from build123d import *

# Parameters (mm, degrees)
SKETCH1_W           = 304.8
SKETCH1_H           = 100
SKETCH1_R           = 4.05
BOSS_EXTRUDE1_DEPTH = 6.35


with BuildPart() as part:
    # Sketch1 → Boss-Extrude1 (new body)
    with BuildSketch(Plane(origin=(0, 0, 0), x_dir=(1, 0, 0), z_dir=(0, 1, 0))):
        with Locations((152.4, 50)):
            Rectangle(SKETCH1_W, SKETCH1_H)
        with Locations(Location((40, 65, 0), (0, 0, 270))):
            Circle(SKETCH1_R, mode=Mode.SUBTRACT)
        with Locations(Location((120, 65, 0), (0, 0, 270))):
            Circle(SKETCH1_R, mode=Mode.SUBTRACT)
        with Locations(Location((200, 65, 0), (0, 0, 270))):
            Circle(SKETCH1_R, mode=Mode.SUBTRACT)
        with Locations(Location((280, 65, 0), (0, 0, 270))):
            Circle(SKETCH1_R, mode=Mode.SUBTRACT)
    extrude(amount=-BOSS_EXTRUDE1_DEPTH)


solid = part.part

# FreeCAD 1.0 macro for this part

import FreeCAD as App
import Part
import Sketcher


def add_polygon(sketch, points):
    """Adds a closed chain of lines whose ends are joined by coincident constraints."""
    first, n = sketch.GeometryCount, len(points)
    for a, b in zip(points, points[1:] + points[:1]):
        sketch.addGeometry(Part.LineSegment(App.Vector(*a, 0), App.Vector(*b, 0)), False)
    for i in range(n):
        sketch.addConstraint(Sketcher.Constraint("Coincident", first + i, 2, first + (i + 1) % n, 1))

doc = App.newDocument("Part")
body = doc.addObject("PartDesign::Body", "Body")

# Sketch on XZ plane
sketch1 = doc.addObject("Sketcher::SketchObject", "Sketch")
body.addObject(sketch1)
sketch1.AttachmentSupport = (doc.XZ_Plane, [""])
sketch1.MapMode = "FlatFace"
add_polygon(sketch1, [(0, -100), (0, 0), (304.8, 0), (304.8, -100)])  # lines 0-3
sketch1.addGeometry(Part.Circle(App.Vector(40, -65, 0), App.Vector(0, 0, 1), 4.05), False)  # 4
sketch1.addGeometry(Part.Circle(App.Vector(120, -65, 0), App.Vector(0, 0, 1), 4.05), False)  # 5
sketch1.addGeometry(Part.Circle(App.Vector(200, -65, 0), App.Vector(0, 0, 1), 4.05), False)  # 6
sketch1.addGeometry(Part.Circle(App.Vector(280, -65, 0), App.Vector(0, 0, 1), 4.05), False)  # 7
sketch1.addConstraint(Sketcher.Constraint("Vertical", 0))
sketch1.addConstraint(Sketcher.Constraint("Horizontal", 1))
sketch1.addConstraint(Sketcher.Constraint("Vertical", 2))
sketch1.addConstraint(Sketcher.Constraint("Horizontal", 3))
sketch1.addConstraint(Sketcher.Constraint("Coincident", 0, 2, -1, 1))
sketch1.addConstraint(Sketcher.Constraint("Equal", 4, 5))
sketch1.addConstraint(Sketcher.Constraint("Equal", 5, 6))
sketch1.addConstraint(Sketcher.Constraint("Equal", 6, 7))
sketch1.addConstraint(Sketcher.Constraint("Horizontal", 4, 3, 5, 3))
sketch1.addConstraint(Sketcher.Constraint("Horizontal", 5, 3, 6, 3))
sketch1.addConstraint(Sketcher.Constraint("Horizontal", 6, 3, 7, 3))
sketch1.addConstraint(Sketcher.Constraint("Diameter", 4, 8.1))
sketch1.addConstraint(Sketcher.Constraint("DistanceY", 0, 1, 0, 2, 100.0))
sketch1.addConstraint(Sketcher.Constraint("DistanceX", 1, 1, 1, 2, 304.8))
sketch1.addConstraint(Sketcher.Constraint("DistanceX", -1, 1, 4, 3, 40.0))
sketch1.addConstraint(Sketcher.Constraint("DistanceY", 4, 3, -1, 1, 65.0))
sketch1.addConstraint(Sketcher.Constraint("DistanceX", -1, 1, 5, 3, 120.0))
sketch1.addConstraint(Sketcher.Constraint("DistanceX", -1, 1, 6, 3, 200.0))
sketch1.addConstraint(Sketcher.Constraint("DistanceX", -1, 1, 7, 3, 280.0))
pad1 = doc.addObject("PartDesign::Pad", "Pad")
body.addObject(pad1)
pad1.Profile = sketch1
pad1.Length = 6.35

doc.recompute()
